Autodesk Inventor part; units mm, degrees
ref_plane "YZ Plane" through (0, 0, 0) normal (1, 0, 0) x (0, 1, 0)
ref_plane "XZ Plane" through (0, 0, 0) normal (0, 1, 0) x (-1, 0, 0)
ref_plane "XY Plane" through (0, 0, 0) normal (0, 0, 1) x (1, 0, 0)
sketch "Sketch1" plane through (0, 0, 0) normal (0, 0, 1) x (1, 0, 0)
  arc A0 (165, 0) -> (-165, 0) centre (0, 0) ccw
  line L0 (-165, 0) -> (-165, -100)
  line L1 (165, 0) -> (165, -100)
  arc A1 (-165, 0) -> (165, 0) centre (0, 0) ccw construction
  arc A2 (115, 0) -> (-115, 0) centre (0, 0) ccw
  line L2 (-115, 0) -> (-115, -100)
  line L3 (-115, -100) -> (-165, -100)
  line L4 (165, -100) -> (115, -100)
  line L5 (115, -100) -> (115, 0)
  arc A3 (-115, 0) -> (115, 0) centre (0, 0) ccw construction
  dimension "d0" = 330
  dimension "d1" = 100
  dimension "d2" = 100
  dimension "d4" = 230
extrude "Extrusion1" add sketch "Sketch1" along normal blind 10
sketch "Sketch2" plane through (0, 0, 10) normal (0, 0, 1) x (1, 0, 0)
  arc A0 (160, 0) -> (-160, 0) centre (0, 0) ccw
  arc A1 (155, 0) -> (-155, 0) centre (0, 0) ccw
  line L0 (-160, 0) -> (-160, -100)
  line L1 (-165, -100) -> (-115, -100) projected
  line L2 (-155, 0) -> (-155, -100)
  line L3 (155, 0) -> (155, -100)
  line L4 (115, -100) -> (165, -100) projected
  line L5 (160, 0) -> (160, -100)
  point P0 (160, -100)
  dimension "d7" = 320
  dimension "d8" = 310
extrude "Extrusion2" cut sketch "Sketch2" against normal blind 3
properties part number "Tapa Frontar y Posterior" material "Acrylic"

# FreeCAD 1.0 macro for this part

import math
import FreeCAD as App
import Part
import Sketcher
Q = App.Units.Quantity

doc = App.newDocument("Part")
body = doc.addObject("PartDesign::Body", "Body")

sketch1 = doc.addObject("Sketcher::SketchObject", "Sketch")
body.addObject(sketch1)
sketch1.AttachmentSupport = (doc.XY_Plane, [""])
sketch1.MapMode = "FlatFace"
sketch1.addGeometry([
    Part.LineSegment(App.Vector(165, -100, 0), App.Vector(165, 0, 0)),
    Part.ArcOfCircle(Part.Circle(App.Vector(0, 0, 0), App.Vector(0, 0, 1), 165), math.radians(0), math.radians(180)),
    Part.LineSegment(App.Vector(-165, 0, 0), App.Vector(-165, -100, 0)),
    Part.LineSegment(App.Vector(-165, -100, 0), App.Vector(-115, -100, 0)),
    Part.LineSegment(App.Vector(-115, -100, 0), App.Vector(-115, 0, 0)),
    Part.ArcOfCircle(Part.Circle(App.Vector(0, 0, 0), App.Vector(0, 0, 1), 115), math.radians(0), math.radians(180)),
    Part.LineSegment(App.Vector(115, 0, 0), App.Vector(115, -100, 0)),
    Part.LineSegment(App.Vector(115, -100, 0), App.Vector(165, -100, 0)),
], False)
sketch1.addConstraint([
    Sketcher.Constraint("Tangent", 0, 2, 1, 1),
    Sketcher.Constraint("Tangent", 1, 2, 2, 1),
    Sketcher.Constraint("Coincident", 2, 2, 3, 1),
    Sketcher.Constraint("Coincident", 3, 2, 4, 1),
    Sketcher.Constraint("Tangent", 4, 2, 5, 2),
    Sketcher.Constraint("Tangent", 5, 1, 6, 1),
    Sketcher.Constraint("Coincident", 6, 2, 7, 1),
    Sketcher.Constraint("Coincident", 7, 2, 0, 1),
    Sketcher.Constraint("Vertical", 0),
    Sketcher.Constraint("Vertical", 2),
    Sketcher.Constraint("Horizontal", 3),
    Sketcher.Constraint("Vertical", 4),
    Sketcher.Constraint("Vertical", 6),
    Sketcher.Constraint("Horizontal", 7),
    Sketcher.Constraint("Coincident", 1, 3, -1, 1),
    Sketcher.Constraint("Coincident", 5, 3, -1, 1),
    Sketcher.Constraint("Horizontal", 3, 2, 6, 2),
    Sketcher.Constraint("Radius", 1, Q("165 mm")),
    Sketcher.Constraint("Radius", 5, Q("115 mm")),
    Sketcher.Constraint("DistanceY", 0, 1, 0, 2, Q("100 mm")),
])
pad1 = doc.addObject("PartDesign::Pad", "Pad")
body.addObject(pad1)
pad1.Profile = sketch1
pad1.Length = 10

sketch2 = doc.addObject("Sketcher::SketchObject", "Sketch001")
body.addObject(sketch2)
sketch2.AttachmentSupport = (doc.XY_Plane, [""])
sketch2.MapMode = "FlatFace"
sketch2.AttachmentOffset = App.Placement(App.Vector(0, 0, 10), App.Rotation())
sketch2.addGeometry([
    Part.LineSegment(App.Vector(160, -100, 0), App.Vector(160, 0, 0)),
    Part.ArcOfCircle(Part.Circle(App.Vector(0, 0, 0), App.Vector(0, 0, 1), 160), math.radians(0), math.radians(180)),
    Part.LineSegment(App.Vector(-160, 0, 0), App.Vector(-160, -100, 0)),
    Part.LineSegment(App.Vector(-160, -100, 0), App.Vector(-155, -100, 0)),
    Part.LineSegment(App.Vector(-155, -100, 0), App.Vector(-155, 0, 0)),
    Part.ArcOfCircle(Part.Circle(App.Vector(0, 0, 0), App.Vector(0, 0, 1), 155), math.radians(0), math.radians(180)),
    Part.LineSegment(App.Vector(155, 0, 0), App.Vector(155, -100, 0)),
    Part.LineSegment(App.Vector(155, -100, 0), App.Vector(160, -100, 0)),
], False)
sketch2.addConstraint([
    Sketcher.Constraint("Tangent", 0, 2, 1, 1),
    Sketcher.Constraint("Tangent", 1, 2, 2, 1),
    Sketcher.Constraint("Coincident", 2, 2, 3, 1),
    Sketcher.Constraint("Coincident", 3, 2, 4, 1),
    Sketcher.Constraint("Tangent", 4, 2, 5, 2),
    Sketcher.Constraint("Tangent", 5, 1, 6, 1),
    Sketcher.Constraint("Coincident", 6, 2, 7, 1),
    Sketcher.Constraint("Coincident", 7, 2, 0, 1),
    Sketcher.Constraint("Vertical", 0),
    Sketcher.Constraint("Vertical", 2),
    Sketcher.Constraint("Horizontal", 3),
    Sketcher.Constraint("Vertical", 4),
    Sketcher.Constraint("Vertical", 6),
    Sketcher.Constraint("Horizontal", 7),
    Sketcher.Constraint("Coincident", 1, 3, -1, 1),
    Sketcher.Constraint("Coincident", 5, 3, -1, 1),
    Sketcher.Constraint("Horizontal", 3, 2, 6, 2),
    Sketcher.Constraint("Radius", 1, Q("160 mm")),
    Sketcher.Constraint("Radius", 5, Q("155 mm")),
    Sketcher.Constraint("DistanceY", 0, 1, 0, 2, Q("100 mm")),
])
pocket1 = doc.addObject("PartDesign::Pocket", "Pocket")
body.addObject(pocket1)
pocket1.Profile = sketch2
pocket1.Length = 3

doc.recompute()
